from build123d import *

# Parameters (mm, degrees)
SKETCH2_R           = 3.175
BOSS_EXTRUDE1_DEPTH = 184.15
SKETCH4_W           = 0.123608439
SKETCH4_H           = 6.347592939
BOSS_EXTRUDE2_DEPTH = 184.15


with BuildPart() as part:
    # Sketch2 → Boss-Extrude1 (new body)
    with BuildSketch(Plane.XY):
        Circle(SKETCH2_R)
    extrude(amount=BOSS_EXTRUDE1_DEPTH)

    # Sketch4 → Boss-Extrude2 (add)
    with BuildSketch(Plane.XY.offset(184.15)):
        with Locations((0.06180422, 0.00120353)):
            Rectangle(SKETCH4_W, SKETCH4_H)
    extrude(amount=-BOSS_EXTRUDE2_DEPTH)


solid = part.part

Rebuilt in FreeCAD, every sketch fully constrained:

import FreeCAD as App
import Part
import Sketcher
from FreeCAD import Vector
Q = App.Units.Quantity

doc = App.newDocument("Part")
body = doc.addObject("PartDesign::Body", "Body")

# Sketch on XY plane
sketch1 = body.newObject("Sketcher::SketchObject", "Sketch")
sketch1.AttachmentSupport = (doc.getObject("XY_Plane"), [""])
sketch1.MapMode = "FlatFace"
sketch1.addGeometry(Part.Circle(Vector(0, 0, 0), Vector(0, 0, 1), 3.2), False)
sketch1.addConstraint(Sketcher.Constraint("Coincident", 0, 3, -1, 1))
sketch1.addConstraint(Sketcher.Constraint("Diameter", 0, Q("0.25 in")))
pad1 = body.newObject("PartDesign::Pad", "Pad")
pad1.Profile = sketch1
pad1.Length = Q("7.25 in")

# Sketch on XY plane
sketch2 = body.newObject("Sketcher::SketchObject", "Sketch001")
sketch2.AttachmentSupport = (doc.getObject("XY_Plane"), [""])
sketch2.MapMode = "FlatFace"
sketch2.AttachmentOffset = App.Placement(Vector(0, 0, 7.25 * 25.4), App.Rotation())
sketch2.addGeometry(Part.LineSegment(Vector(0, 3.17, 0), Vector(0, -3.17, 0)), False)
sketch2.addGeometry(Part.LineSegment(Vector(0, -3.17, 0), Vector(0.12, -3.17, 0)), False)
sketch2.addGeometry(Part.LineSegment(Vector(0.12, -3.17, 0), Vector(0.12, 3.17, 0)), False)
sketch2.addGeometry(Part.LineSegment(Vector(0.12, 3.17, 0), Vector(0, 3.17, 0)), False)
sketch2.addConstraint(Sketcher.Constraint("Coincident", 0, 2, 1, 1))
sketch2.addConstraint(Sketcher.Constraint("Coincident", 1, 2, 2, 1))
sketch2.addConstraint(Sketcher.Constraint("Coincident", 2, 2, 3, 1))
sketch2.addConstraint(Sketcher.Constraint("Coincident", 3, 2, 0, 1))
sketch2.addConstraint(Sketcher.Constraint("Vertical", 0))
sketch2.addConstraint(Sketcher.Constraint("Horizontal", 1))
sketch2.addConstraint(Sketcher.Constraint("Vertical", 2))
sketch2.addConstraint(Sketcher.Constraint("Horizontal", 3))
sketch2.addConstraint(Sketcher.Constraint("PointOnObject", 0, 2, -2))
sketch2.addConstraint(Sketcher.Constraint("DistanceY", -1, 1, 2, 2, Q("0.125 in")))
sketch2.addConstraint(Sketcher.Constraint("DistanceX", 1, 1, 1, 2, 0.123608))
sketch2.addConstraint(Sketcher.Constraint("DistanceY", 0, 2, 0, 1, 6.347593))
pad2 = body.newObject("PartDesign::Pad", "Pad001")
pad2.Profile = sketch2
pad2.Length = Q("7.25 in")
pad2.Reversed = True

doc.recompute()
